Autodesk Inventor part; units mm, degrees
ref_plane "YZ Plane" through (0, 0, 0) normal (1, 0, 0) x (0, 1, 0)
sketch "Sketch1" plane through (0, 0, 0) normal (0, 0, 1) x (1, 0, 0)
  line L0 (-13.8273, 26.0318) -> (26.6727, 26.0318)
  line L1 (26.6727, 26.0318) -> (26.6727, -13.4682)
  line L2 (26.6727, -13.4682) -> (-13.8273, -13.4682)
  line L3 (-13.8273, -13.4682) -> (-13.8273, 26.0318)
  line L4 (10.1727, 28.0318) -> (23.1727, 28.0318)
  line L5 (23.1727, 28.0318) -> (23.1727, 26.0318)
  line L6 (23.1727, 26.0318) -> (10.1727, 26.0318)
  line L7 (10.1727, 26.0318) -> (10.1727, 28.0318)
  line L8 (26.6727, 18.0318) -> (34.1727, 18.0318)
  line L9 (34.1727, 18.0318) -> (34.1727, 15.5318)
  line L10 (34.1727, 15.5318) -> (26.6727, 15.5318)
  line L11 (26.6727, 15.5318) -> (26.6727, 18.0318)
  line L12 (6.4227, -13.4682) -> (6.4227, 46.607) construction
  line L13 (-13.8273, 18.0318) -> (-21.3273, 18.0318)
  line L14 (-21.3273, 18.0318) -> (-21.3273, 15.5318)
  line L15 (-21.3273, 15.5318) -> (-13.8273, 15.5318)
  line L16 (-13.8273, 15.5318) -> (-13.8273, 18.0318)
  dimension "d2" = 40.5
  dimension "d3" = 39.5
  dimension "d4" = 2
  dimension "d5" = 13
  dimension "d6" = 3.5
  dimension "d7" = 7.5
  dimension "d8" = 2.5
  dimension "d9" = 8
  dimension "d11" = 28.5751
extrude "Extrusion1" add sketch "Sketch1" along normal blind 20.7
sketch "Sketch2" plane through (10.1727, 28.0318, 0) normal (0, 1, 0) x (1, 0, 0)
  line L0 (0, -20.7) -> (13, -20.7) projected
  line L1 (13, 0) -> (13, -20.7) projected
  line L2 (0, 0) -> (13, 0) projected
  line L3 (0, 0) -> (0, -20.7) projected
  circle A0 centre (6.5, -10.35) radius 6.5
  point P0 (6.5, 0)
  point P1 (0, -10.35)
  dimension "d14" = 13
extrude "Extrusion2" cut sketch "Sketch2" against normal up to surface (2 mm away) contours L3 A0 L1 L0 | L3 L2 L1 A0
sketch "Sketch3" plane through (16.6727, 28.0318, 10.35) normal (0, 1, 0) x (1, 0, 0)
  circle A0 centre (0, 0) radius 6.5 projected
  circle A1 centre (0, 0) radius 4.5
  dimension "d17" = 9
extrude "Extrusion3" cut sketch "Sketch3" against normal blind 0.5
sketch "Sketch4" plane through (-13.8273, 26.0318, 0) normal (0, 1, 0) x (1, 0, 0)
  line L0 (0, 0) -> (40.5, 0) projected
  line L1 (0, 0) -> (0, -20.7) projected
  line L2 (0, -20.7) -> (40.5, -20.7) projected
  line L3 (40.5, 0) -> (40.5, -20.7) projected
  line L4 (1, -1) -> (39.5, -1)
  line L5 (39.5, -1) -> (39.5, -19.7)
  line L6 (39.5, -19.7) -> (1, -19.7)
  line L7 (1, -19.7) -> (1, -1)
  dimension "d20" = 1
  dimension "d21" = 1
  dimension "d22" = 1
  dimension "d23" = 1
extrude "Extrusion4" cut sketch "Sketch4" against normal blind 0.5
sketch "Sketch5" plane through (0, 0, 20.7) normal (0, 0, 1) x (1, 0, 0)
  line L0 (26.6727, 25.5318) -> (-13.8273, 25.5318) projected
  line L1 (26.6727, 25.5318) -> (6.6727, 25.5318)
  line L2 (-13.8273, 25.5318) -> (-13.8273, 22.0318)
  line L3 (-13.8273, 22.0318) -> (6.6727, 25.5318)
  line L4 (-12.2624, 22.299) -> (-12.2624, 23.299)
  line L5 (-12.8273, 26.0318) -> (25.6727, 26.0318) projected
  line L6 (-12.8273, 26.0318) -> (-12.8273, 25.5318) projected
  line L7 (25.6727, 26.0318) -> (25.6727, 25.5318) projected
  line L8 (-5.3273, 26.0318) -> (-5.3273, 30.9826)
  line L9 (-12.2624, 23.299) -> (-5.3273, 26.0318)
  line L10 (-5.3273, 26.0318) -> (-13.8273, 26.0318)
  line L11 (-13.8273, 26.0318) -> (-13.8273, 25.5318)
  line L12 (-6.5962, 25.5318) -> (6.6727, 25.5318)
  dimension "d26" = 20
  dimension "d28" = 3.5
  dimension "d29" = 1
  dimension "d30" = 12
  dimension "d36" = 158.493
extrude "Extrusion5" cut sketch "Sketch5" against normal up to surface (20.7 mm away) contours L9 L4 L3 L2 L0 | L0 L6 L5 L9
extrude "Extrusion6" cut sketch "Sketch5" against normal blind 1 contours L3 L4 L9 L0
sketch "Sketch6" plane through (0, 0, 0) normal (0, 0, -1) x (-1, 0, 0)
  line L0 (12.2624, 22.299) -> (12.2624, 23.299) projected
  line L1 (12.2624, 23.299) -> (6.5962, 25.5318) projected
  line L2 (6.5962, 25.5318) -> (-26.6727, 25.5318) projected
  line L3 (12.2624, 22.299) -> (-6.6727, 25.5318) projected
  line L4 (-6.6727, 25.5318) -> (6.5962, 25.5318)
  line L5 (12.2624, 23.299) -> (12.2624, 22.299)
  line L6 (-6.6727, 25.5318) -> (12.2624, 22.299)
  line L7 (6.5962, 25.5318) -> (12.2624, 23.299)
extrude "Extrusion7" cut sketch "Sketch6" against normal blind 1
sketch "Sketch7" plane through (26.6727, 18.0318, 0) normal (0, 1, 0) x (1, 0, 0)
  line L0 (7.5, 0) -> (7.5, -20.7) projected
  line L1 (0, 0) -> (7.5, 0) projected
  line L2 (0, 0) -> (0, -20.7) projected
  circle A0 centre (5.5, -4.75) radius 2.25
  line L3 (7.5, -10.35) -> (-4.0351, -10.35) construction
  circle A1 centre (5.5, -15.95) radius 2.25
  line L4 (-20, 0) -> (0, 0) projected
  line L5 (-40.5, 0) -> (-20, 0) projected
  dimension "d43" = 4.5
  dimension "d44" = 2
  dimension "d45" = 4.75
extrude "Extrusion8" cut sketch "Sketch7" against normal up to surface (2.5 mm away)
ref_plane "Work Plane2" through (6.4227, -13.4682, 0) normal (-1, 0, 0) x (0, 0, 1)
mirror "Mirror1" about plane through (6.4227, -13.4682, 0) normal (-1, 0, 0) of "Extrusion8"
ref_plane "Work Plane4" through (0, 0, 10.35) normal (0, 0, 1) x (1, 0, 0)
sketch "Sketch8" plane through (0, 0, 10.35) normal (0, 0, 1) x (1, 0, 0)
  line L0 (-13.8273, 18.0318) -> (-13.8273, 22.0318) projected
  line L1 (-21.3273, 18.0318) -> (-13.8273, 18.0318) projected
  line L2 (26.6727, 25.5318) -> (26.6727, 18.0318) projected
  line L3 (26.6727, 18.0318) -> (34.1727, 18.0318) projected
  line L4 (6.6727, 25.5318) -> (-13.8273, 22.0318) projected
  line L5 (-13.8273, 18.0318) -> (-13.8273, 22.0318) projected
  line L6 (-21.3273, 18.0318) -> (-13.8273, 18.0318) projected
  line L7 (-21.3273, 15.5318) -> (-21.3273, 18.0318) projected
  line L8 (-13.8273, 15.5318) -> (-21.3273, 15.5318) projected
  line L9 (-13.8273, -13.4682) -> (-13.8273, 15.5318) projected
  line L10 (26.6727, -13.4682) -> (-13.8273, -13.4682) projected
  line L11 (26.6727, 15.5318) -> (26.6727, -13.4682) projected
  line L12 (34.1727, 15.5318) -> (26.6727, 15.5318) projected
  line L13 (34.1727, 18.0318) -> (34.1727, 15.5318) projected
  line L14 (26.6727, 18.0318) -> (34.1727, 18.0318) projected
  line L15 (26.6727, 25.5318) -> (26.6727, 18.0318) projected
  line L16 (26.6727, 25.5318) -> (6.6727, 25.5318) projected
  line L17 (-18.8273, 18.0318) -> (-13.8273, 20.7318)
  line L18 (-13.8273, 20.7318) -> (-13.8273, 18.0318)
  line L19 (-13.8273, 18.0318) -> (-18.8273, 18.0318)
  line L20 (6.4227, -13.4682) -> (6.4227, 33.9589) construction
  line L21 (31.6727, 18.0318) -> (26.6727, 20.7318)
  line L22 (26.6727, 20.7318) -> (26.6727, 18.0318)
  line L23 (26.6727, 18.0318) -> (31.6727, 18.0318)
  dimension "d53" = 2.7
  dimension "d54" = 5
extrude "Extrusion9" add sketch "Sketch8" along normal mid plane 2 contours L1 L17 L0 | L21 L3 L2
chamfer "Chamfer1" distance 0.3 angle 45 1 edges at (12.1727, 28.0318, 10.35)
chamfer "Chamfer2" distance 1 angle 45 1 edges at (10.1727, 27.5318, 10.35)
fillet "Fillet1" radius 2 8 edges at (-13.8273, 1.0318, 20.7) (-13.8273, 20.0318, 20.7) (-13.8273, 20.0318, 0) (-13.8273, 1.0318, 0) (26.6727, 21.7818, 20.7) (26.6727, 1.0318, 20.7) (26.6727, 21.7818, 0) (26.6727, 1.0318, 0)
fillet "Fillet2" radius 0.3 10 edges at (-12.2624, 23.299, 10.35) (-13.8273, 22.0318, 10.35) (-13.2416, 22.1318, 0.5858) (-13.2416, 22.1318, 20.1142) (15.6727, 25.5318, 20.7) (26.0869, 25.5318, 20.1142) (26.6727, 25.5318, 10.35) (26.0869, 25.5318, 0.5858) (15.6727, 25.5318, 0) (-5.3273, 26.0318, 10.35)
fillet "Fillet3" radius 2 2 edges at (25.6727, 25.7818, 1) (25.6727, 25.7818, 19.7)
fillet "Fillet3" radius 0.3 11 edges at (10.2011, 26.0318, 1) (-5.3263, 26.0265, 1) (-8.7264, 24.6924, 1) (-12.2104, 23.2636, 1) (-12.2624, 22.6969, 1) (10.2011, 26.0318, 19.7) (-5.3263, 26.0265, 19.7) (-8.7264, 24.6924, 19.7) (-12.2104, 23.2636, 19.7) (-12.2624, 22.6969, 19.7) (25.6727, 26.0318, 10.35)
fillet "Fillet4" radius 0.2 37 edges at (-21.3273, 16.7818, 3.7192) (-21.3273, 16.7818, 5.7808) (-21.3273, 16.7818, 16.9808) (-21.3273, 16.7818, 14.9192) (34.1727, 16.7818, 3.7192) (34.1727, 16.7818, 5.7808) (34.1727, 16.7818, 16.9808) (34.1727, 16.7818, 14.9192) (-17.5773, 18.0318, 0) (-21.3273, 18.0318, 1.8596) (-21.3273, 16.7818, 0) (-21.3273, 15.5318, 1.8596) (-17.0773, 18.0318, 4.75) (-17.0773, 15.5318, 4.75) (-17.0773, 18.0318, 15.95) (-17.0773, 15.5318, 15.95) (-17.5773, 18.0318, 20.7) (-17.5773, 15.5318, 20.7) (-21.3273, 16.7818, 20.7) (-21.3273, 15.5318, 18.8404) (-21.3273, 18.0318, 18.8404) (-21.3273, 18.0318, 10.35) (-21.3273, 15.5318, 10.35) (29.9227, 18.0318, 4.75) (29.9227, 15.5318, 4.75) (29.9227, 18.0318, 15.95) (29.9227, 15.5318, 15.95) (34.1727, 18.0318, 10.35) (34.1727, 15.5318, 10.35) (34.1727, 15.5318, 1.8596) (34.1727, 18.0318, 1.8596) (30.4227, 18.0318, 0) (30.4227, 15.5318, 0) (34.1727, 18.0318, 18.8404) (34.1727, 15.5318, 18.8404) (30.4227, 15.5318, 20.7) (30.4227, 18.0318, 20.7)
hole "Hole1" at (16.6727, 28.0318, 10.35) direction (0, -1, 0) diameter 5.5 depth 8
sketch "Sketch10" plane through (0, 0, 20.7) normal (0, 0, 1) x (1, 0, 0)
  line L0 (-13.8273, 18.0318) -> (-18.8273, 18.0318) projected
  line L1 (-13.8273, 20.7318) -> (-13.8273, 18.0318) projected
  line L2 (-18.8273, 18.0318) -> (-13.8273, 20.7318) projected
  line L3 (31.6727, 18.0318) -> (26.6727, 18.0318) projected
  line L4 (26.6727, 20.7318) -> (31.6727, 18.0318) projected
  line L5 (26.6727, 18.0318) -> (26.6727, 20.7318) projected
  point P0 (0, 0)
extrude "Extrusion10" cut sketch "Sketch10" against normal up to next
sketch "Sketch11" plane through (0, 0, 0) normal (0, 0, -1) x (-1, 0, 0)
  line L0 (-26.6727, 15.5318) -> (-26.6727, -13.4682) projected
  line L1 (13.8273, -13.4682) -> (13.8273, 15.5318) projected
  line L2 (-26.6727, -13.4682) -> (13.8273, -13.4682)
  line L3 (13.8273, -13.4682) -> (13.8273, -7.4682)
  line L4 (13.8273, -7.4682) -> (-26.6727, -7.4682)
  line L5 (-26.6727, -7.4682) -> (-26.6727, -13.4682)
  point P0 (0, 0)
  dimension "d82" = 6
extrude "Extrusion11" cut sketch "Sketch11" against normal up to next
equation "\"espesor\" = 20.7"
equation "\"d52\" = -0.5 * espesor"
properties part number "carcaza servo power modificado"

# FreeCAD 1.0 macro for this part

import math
import FreeCAD as App
import Part
import Sketcher

V = App.Vector
Q = App.Units.Quantity


def edges_at(feature, points):
    """Names of the edges that pass closest to the given points."""
    edges = feature.Shape.Edges
    near = lambda p: min(range(len(edges)), key=lambda i: edges[i].distToShape(Part.Vertex(*p))[0])
    return sorted({f"Edge{near(p) + 1}" for p in points})


def add_polygon(sketch, points):
    """Adds a closed chain of lines whose ends are joined by coincident constraints."""
    first, n = sketch.GeometryCount, len(points)
    for a, b in zip(points, points[1:] + points[:1]):
        sketch.addGeometry(Part.LineSegment(App.Vector(*a, 0), App.Vector(*b, 0)), False)
    for i in range(n):
        sketch.addConstraint(Sketcher.Constraint("Coincident", first + i, 2, first + (i + 1) % n, 1))

doc = App.newDocument("Part")
body = doc.addObject("PartDesign::Body", "Body")

sketch1 = body.newObject("Sketcher::SketchObject", "Sketch")
sketch1.AttachmentSupport = (doc.getObject("XY_Plane"), [""])
sketch1.MapMode = "FlatFace"
add_polygon(sketch1, [(10.2, 26), (-13.8, 26), (-13.8, 18), (-21.3, 18), (-21.3, 15.5), (-13.8, 15.5), (-13.8, -13.5), (26.7, -13.5), (26.7, 15.5), (34.2, 15.5), (34.2, 18), (26.7, 18), (26.7, 26), (23.2, 26), (23.2, 28), (10.2, 28)])
sketch1.addConstraint(Sketcher.Constraint("Horizontal", 0))
sketch1.addConstraint(Sketcher.Constraint("Vertical", 1))
sketch1.addConstraint(Sketcher.Constraint("Horizontal", 2))
sketch1.addConstraint(Sketcher.Constraint("Vertical", 3))
sketch1.addConstraint(Sketcher.Constraint("Horizontal", 4))
sketch1.addConstraint(Sketcher.Constraint("Vertical", 5))
sketch1.addConstraint(Sketcher.Constraint("Horizontal", 6))
sketch1.addConstraint(Sketcher.Constraint("Vertical", 7))
sketch1.addConstraint(Sketcher.Constraint("Horizontal", 8))
sketch1.addConstraint(Sketcher.Constraint("Vertical", 9))
sketch1.addConstraint(Sketcher.Constraint("Horizontal", 10))
sketch1.addConstraint(Sketcher.Constraint("Vertical", 11))
sketch1.addConstraint(Sketcher.Constraint("Horizontal", 12))
sketch1.addConstraint(Sketcher.Constraint("Vertical", 13))
sketch1.addConstraint(Sketcher.Constraint("Horizontal", 14))
sketch1.addConstraint(Sketcher.Constraint("Vertical", 15))
sketch1.addConstraint(Sketcher.Constraint("Horizontal", 4, 2, 7, 2))
sketch1.addConstraint(Sketcher.Constraint("Horizontal", 2, 2, 9, 2))
sketch1.addConstraint(Sketcher.Constraint("Horizontal", 0, 2, 11, 2))
sketch1.addConstraint(Sketcher.Constraint("Vertical", 1, 2, 4, 2))
sketch1.addConstraint(Sketcher.Constraint("Vertical", 7, 2, 10, 2))
sketch1.addConstraint(Sketcher.Constraint("Equal", 4, 8))
sketch1.addConstraint(Sketcher.Constraint("DistanceX", 14, 2, 14, 1, Q("13 mm")))
sketch1.addConstraint(Sketcher.Constraint("DistanceY", 1, 2, 1, 1, Q("8 mm")))
sketch1.addConstraint(Sketcher.Constraint("DistanceY", 13, 1, 13, 2, Q("2 mm")))
sketch1.addConstraint(Sketcher.Constraint("DistanceX", 2, 2, 2, 1, Q("7.5 mm")))
sketch1.addConstraint(Sketcher.Constraint("DistanceX", 6, 1, 6, 2, Q("40.5 mm")))
sketch1.addConstraint(Sketcher.Constraint("DistanceX", 12, 2, 12, 1, Q("3.5 mm")))
sketch1.addConstraint(Sketcher.Constraint("DistanceY", 3, 2, 3, 1, Q("2.5 mm")))
sketch1.addConstraint(Sketcher.Constraint("DistanceY", 5, 2, 0, 2, Q("39.5 mm")))
sketch1.addConstraint(Sketcher.Constraint("DistanceX", 0, 2, -1, 1, Q("13.8273 mm")))
sketch1.addConstraint(Sketcher.Constraint("DistanceY", -1, 1, 0, 2, Q("26.0318 mm")))
pad1 = body.newObject("PartDesign::Pad", "Pad")
pad1.Profile = sketch1
pad1.Length = 20.7

sketch2 = body.newObject("Sketcher::SketchObject", "Sketch001")
sketch2.AttachmentSupport = (doc.getObject("XZ_Plane"), [""])
sketch2.MapMode = "FlatFace"
sketch2.AttachmentOffset = App.Placement(V(0, 0, -28.0318), App.Rotation())
sketch2.addGeometry(Part.LineSegment(V(10, 10, 0), V(10, 21, 0)), False)
sketch2.addGeometry(Part.LineSegment(V(10, 21, 0), V(23, 21, 0)), False)
sketch2.addGeometry(Part.LineSegment(V(23, 21, 0), V(23, 10, 0)), False)
sketch2.addGeometry(Part.ArcOfCircle(Part.Circle(V(17, 10, 0), V(0, 0, 1), 6), math.radians(0), math.radians(180)), False)
sketch2.addGeometry(Part.LineSegment(V(10, 0, 0), V(10, 10, 0)), False)
sketch2.addGeometry(Part.ArcOfCircle(Part.Circle(V(17, 10, 0), V(0, 0, 1), 6), math.radians(180), math.radians(360)), False)
sketch2.addGeometry(Part.LineSegment(V(23, 10, 0), V(23, 0, 0)), False)
sketch2.addGeometry(Part.LineSegment(V(23, 0, 0), V(10, 0, 0)), False)
sketch2.addConstraint(Sketcher.Constraint("Coincident", 0, 2, 1, 1))
sketch2.addConstraint(Sketcher.Constraint("Coincident", 1, 2, 2, 1))
sketch2.addConstraint(Sketcher.Constraint("Tangent", 2, 2, 3, 1))
sketch2.addConstraint(Sketcher.Constraint("Tangent", 3, 2, 0, 1))
sketch2.addConstraint(Sketcher.Constraint("Tangent", 4, 2, 5, 1))
sketch2.addConstraint(Sketcher.Constraint("Tangent", 5, 2, 6, 1))
sketch2.addConstraint(Sketcher.Constraint("Coincident", 6, 2, 7, 1))
sketch2.addConstraint(Sketcher.Constraint("Coincident", 7, 2, 4, 1))
sketch2.addConstraint(Sketcher.Constraint("Vertical", 0))
sketch2.addConstraint(Sketcher.Constraint("Horizontal", 1))
sketch2.addConstraint(Sketcher.Constraint("Vertical", 2))
sketch2.addConstraint(Sketcher.Constraint("Vertical", 4))
sketch2.addConstraint(Sketcher.Constraint("Vertical", 6))
sketch2.addConstraint(Sketcher.Constraint("Horizontal", 7))
sketch2.addConstraint(Sketcher.Constraint("Coincident", 5, 3, 3, 3))
sketch2.addConstraint(Sketcher.Constraint("Equal", 3, 5))
sketch2.addConstraint(Sketcher.Constraint("PointOnObject", 6, 2, -1))
sketch2.addConstraint(Sketcher.Constraint("Equal", 2, 4))
sketch2.addConstraint(Sketcher.Constraint("Radius", 3, Q("6.5 mm")))
sketch2.addConstraint(Sketcher.Constraint("DistanceY", 0, 1, 0, 2, Q("10.35 mm")))
sketch2.addConstraint(Sketcher.Constraint("DistanceX", -1, 1, 3, 3, Q("16.6727 mm")))
pocket1 = body.newObject("PartDesign::Pocket", "Pocket")
pocket1.Profile = sketch2
pocket1.Length = 2
pocket1.Reversed = True

sketch3 = body.newObject("Sketcher::SketchObject", "Sketch002")
sketch3.AttachmentSupport = (doc.getObject("XZ_Plane"), [""])
sketch3.MapMode = "FlatFace"
sketch3.AttachmentOffset = App.Placement(V(0, 0, -28.0318), App.Rotation())
sketch3.addGeometry(Part.Circle(V(16.7, 10.3, 0), V(0, 0, 1), 6.5), False)
sketch3.addGeometry(Part.Circle(V(16.7, 10.3, 0), V(0, 0, 1), 4.5), False)
sketch3.addConstraint(Sketcher.Constraint("Coincident", 1, 3, 0, 3))
sketch3.addConstraint(Sketcher.Constraint("Diameter", 1, Q("9 mm")))
sketch3.addConstraint(Sketcher.Constraint("Diameter", 0, Q("13 mm")))
sketch3.addConstraint(Sketcher.Constraint("DistanceY", -1, 1, 0, 3, Q("10.35 mm")))
sketch3.addConstraint(Sketcher.Constraint("DistanceX", -1, 1, 0, 3, Q("16.6727 mm")))
pocket2 = body.newObject("PartDesign::Pocket", "Pocket001")
pocket2.Profile = sketch3
pocket2.Length = 0.5
pocket2.Reversed = True

sketch4 = body.newObject("Sketcher::SketchObject", "Sketch003")
sketch4.AttachmentSupport = (doc.getObject("XZ_Plane"), [""])
sketch4.MapMode = "FlatFace"
sketch4.AttachmentOffset = App.Placement(V(0, 0, -26.0318), App.Rotation())
add_polygon(sketch4, [(27, 0), (-14, 0), (-14, 21), (27, 21)])
add_polygon(sketch4, [(-13, 20), (-13, 1), (26, 1), (26, 20)])
sketch4.addConstraint(Sketcher.Constraint("Horizontal", 0))
sketch4.addConstraint(Sketcher.Constraint("Vertical", 1))
sketch4.addConstraint(Sketcher.Constraint("Horizontal", 2))
sketch4.addConstraint(Sketcher.Constraint("Vertical", 3))
sketch4.addConstraint(Sketcher.Constraint("Vertical", 4))
sketch4.addConstraint(Sketcher.Constraint("Horizontal", 5))
sketch4.addConstraint(Sketcher.Constraint("Vertical", 6))
sketch4.addConstraint(Sketcher.Constraint("Horizontal", 7))
sketch4.addConstraint(Sketcher.Constraint("PointOnObject", 0, 2, -1))
sketch4.addConstraint(Sketcher.Constraint("DistanceY", -1, 1, 4, 2, Q("1 mm")))
sketch4.addConstraint(Sketcher.Constraint("DistanceX", 0, 2, 4, 2, Q("1 mm")))
sketch4.addConstraint(Sketcher.Constraint("DistanceX", 5, 2, 3, 2, Q("1 mm")))
sketch4.addConstraint(Sketcher.Constraint("DistanceY", 6, 2, 2, 2, Q("1 mm")))
sketch4.addConstraint(Sketcher.Constraint("DistanceX", 0, 2, 0, 1, Q("40.5 mm")))
sketch4.addConstraint(Sketcher.Constraint("DistanceY", 1, 1, 1, 2, Q("20.7 mm")))
sketch4.addConstraint(Sketcher.Constraint("DistanceX", 0, 2, -1, 1, Q("13.8273 mm")))
pocket3 = body.newObject("PartDesign::Pocket", "Pocket002")
pocket3.Profile = sketch4
pocket3.Length = 0.5
pocket3.Reversed = True

sketch5 = body.newObject("Sketcher::SketchObject", "Sketch004")
sketch5.AttachmentSupport = (doc.getObject("XY_Plane"), [""])
sketch5.MapMode = "FlatFace"
sketch5.AttachmentOffset = App.Placement(V(0, 0, 20.7), App.Rotation())
add_polygon(sketch5, [(-12.3, 23.3), (-5.3, 26), (-12.8, 26), (-12.8, 25.5), (-13.8, 25.5), (-13.8, 22), (-12.3, 22.3)])
sketch5.addConstraint(Sketcher.Constraint("Horizontal", 1))
sketch5.addConstraint(Sketcher.Constraint("Vertical", 2))
sketch5.addConstraint(Sketcher.Constraint("Horizontal", 3))
sketch5.addConstraint(Sketcher.Constraint("Vertical", 4))
sketch5.addConstraint(Sketcher.Constraint("Vertical", 6))
sketch5.addConstraint(Sketcher.Constraint("Equal", 3, 6))
sketch5.addConstraint(Sketcher.Constraint("DistanceX", 3, 2, 3, 1, Q("1 mm")))
sketch5.addConstraint(Sketcher.Constraint("DistanceY", 4, 2, 4, 1, Q("3.5 mm")))
sketch5.addConstraint(Sketcher.Constraint("DistanceX", 1, 2, 1, 1, Q("7.5 mm")))
sketch5.addConstraint(Sketcher.Constraint("DistanceY", 2, 2, 2, 1, Q("0.5 mm")))
sketch5.addConstraint(Sketcher.Constraint("Distance", 0, Q("7.454 mm")))
sketch5.addConstraint(Sketcher.Constraint("DistanceY", -1, 1, 5, 2, Q("22.299 mm")))
sketch5.addConstraint(Sketcher.Constraint("DistanceX", 4, 2, 5, 2, Q("1.565 mm")))
sketch5.addConstraint(Sketcher.Constraint("DistanceX", 0, 2, -1, 1, Q("5.3273 mm")))
pocket4 = body.newObject("PartDesign::Pocket", "Pocket003")
pocket4.Profile = sketch5
pocket4.Length = 20.7

sketch6 = body.newObject("Sketcher::SketchObject", "Sketch005")
sketch6.AttachmentSupport = (doc.getObject("XY_Plane"), [""])
sketch6.MapMode = "FlatFace"
sketch6.AttachmentOffset = App.Placement(V(0, 0, 20.7), App.Rotation())
add_polygon(sketch6, [(-12.3, 22.3), (6.7, 25.5), (-6.6, 25.5), (-12.3, 23.3)])
sketch6.addConstraint(Sketcher.Constraint("Horizontal", 1))
sketch6.addConstraint(Sketcher.Constraint("Vertical", 3))
sketch6.addConstraint(Sketcher.Constraint("DistanceY", 3, 2, 3, 1, Q("1 mm")))
sketch6.addConstraint(Sketcher.Constraint("DistanceX", 1, 2, 1, 1, Q("13.269 mm")))
sketch6.addConstraint(Sketcher.Constraint("Distance", 0, Q("19.209 mm")))
sketch6.addConstraint(Sketcher.Constraint("DistanceY", -1, 1, 2, 2, Q("23.299 mm")))
sketch6.addConstraint(Sketcher.Constraint("DistanceX", 2, 2, 0, 2, Q("18.935 mm")))
sketch6.addConstraint(Sketcher.Constraint("DistanceX", -1, 1, 0, 2, Q("6.6727 mm")))
pocket5 = body.newObject("PartDesign::Pocket", "Pocket004")
pocket5.Profile = sketch6
pocket5.Length = 1

sketch7 = body.newObject("Sketcher::SketchObject", "Sketch006")
sketch7.AttachmentSupport = (doc.getObject("XY_Plane"), [""])
sketch7.MapMode = "FlatFace"
add_polygon(sketch7, [(6.7, 25.5), (-12.3, 22.3), (-12.3, 23.3), (-6.6, 25.5)])
sketch7.addConstraint(Sketcher.Constraint("Vertical", 1))
sketch7.addConstraint(Sketcher.Constraint("Horizontal", 3))
sketch7.addConstraint(Sketcher.Constraint("DistanceY", 1, 1, 1, 2, Q("1 mm")))
sketch7.addConstraint(Sketcher.Constraint("DistanceX", 3, 1, 3, 2, Q("13.269 mm")))
sketch7.addConstraint(Sketcher.Constraint("Distance", 0, Q("19.209 mm")))
sketch7.addConstraint(Sketcher.Constraint("DistanceY", -1, 1, 0, 2, Q("22.299 mm")))
sketch7.addConstraint(Sketcher.Constraint("DistanceX", 1, 2, 3, 2, Q("18.935 mm")))
sketch7.addConstraint(Sketcher.Constraint("DistanceX", 0, 2, -1, 1, Q("12.2624 mm")))
pocket6 = body.newObject("PartDesign::Pocket", "Pocket005")
pocket6.Profile = sketch7
pocket6.Length = 1
pocket6.Reversed = True

sketch8 = body.newObject("Sketcher::SketchObject", "Sketch007")
sketch8.AttachmentSupport = (doc.getObject("XZ_Plane"), [""])
sketch8.MapMode = "FlatFace"
sketch8.AttachmentOffset = App.Placement(V(0, 0, -18.0318), App.Rotation())
sketch8.addGeometry(Part.Circle(V(32.2, 4.8, 0), V(0, 0, 1), 2.2), False)
sketch8.addGeometry(Part.Circle(V(32.2, 15.9, 0), V(0, 0, 1), 2.2), False)
sketch8.addConstraint(Sketcher.Constraint("Equal", 0, 1))
sketch8.addConstraint(Sketcher.Constraint("Vertical", 0, 3, 1, 3))
sketch8.addConstraint(Sketcher.Constraint("Diameter", 0, Q("4.5 mm")))
sketch8.addConstraint(Sketcher.Constraint("DistanceY", -1, 1, 0, 3, Q("4.75 mm")))
sketch8.addConstraint(Sketcher.Constraint("DistanceY", 0, 3, 1, 3, Q("11.2 mm")))
sketch8.addConstraint(Sketcher.Constraint("DistanceX", -1, 1, 0, 3, Q("32.1727 mm")))
pocket7 = body.newObject("PartDesign::Pocket", "Pocket006")
pocket7.Profile = sketch8
pocket7.Length = 2.5
pocket7.Reversed = True
doc.recompute()

datumplane = body.newObject("PartDesign::Plane", "DatumPlane")
datumplane.AttachmentSupport = (doc.getObject("YZ_Plane"), [""])
datumplane.MapMode = "FlatFace"
datumplane.AttachmentOffset = App.Placement(V(0, 0, 6.4227), App.Rotation())
mirrored = body.newObject("PartDesign::Mirrored", "Mirrored")
mirrored.Originals = [pocket7]
mirrored.MirrorPlane = (datumplane, [""])
body.Tip = mirrored

sketch9 = body.newObject("Sketcher::SketchObject", "Sketch008")
sketch9.AttachmentSupport = (doc.getObject("XY_Plane"), [""])
sketch9.MapMode = "FlatFace"
sketch9.AttachmentOffset = App.Placement(V(0, 0, 10.35), App.Rotation())
add_polygon(sketch9, [(-18.8, 18), (-13.8, 18), (-13.8, 20.7)])
add_polygon(sketch9, [(31.7, 18), (26.7, 20.7), (26.7, 18)])
sketch9.addConstraint(Sketcher.Constraint("Horizontal", 0))
sketch9.addConstraint(Sketcher.Constraint("Vertical", 1))
sketch9.addConstraint(Sketcher.Constraint("Vertical", 4))
sketch9.addConstraint(Sketcher.Constraint("Horizontal", 5))
sketch9.addConstraint(Sketcher.Constraint("Horizontal", 1, 2, 3, 2))
sketch9.addConstraint(Sketcher.Constraint("Horizontal", 2, 2, 4, 2))
sketch9.addConstraint(Sketcher.Constraint("Equal", 0, 5))
sketch9.addConstraint(Sketcher.Constraint("DistanceX", 0, 1, 0, 2, Q("5 mm")))
sketch9.addConstraint(Sketcher.Constraint("DistanceY", 1, 1, 1, 2, Q("2.7 mm")))
sketch9.addConstraint(Sketcher.Constraint("DistanceX", 1, 2, 3, 2, Q("40.5 mm")))
sketch9.addConstraint(Sketcher.Constraint("DistanceX", 0, 2, -1, 1, Q("13.8273 mm")))
sketch9.addConstraint(Sketcher.Constraint("DistanceY", -1, 1, 0, 2, Q("18.0318 mm")))
pad2 = body.newObject("PartDesign::Pad", "Pad001")
pad2.Profile = sketch9
pad2.Length = 2
pad2.Midplane = True
doc.recompute()

chamfer = body.newObject("PartDesign::Chamfer", "Chamfer")
chamfer.Base = (pad2, edges_at(pad2, [(12.173, 28.032, 10.35)]))
chamfer.Size = 0.3
doc.recompute()

chamfer2 = body.newObject("PartDesign::Chamfer", "Chamfer001")
chamfer2.Base = (chamfer, edges_at(chamfer, [(10.173, 27.532, 10.35)]))
chamfer2.Size = 1
doc.recompute()

fillet = body.newObject("PartDesign::Fillet", "Fillet")
fillet.Base = (chamfer2, edges_at(chamfer2, [
    (-13.827, 1.032, 20.7),
    (-13.827, 20.032, 20.7),
    (-13.827, 20.032, 0),
    (-13.827, 1.032, 0),
    (26.673, 21.782, 20.7),
    (26.673, 1.032, 20.7),
    (26.673, 21.782, 0),
    (26.673, 1.032, 0),
]))
fillet.Radius = 2
doc.recompute()

fillet2 = body.newObject("PartDesign::Fillet", "Fillet001")
fillet2.Base = (fillet, edges_at(fillet, [
    (-12.262, 23.299, 10.35),
    (-13.827, 22.032, 10.35),
    (-13.242, 22.132, 0.586),
    (-13.242, 22.132, 20.114),
    (15.673, 25.532, 20.7),
    (26.087, 25.532, 20.114),
    (26.673, 25.532, 10.35),
    (26.087, 25.532, 0.586),
    (15.673, 25.532, 0),
    (-5.327, 26.032, 10.35),
]))
fillet2.Radius = 0.3
doc.recompute()

fillet3 = body.newObject("PartDesign::Fillet", "Fillet002")
fillet3.Base = (fillet2, edges_at(fillet2, [(25.673, 25.782, 1), (25.673, 25.782, 19.7)]))
fillet3.Radius = 2
doc.recompute()

fillet4 = body.newObject("PartDesign::Fillet", "Fillet003")
fillet4.Base = (fillet3, edges_at(fillet3, [
    (10.201, 26.032, 1),
    (-5.326, 26.026, 1),
    (-8.726, 24.692, 1),
    (-12.21, 23.264, 1),
    (-12.262, 22.697, 1),
    (10.201, 26.032, 19.7),
    (-5.326, 26.026, 19.7),
    (-8.726, 24.692, 19.7),
    (-12.21, 23.264, 19.7),
    (-12.262, 22.697, 19.7),
    (25.673, 26.032, 10.35),
]))
fillet4.Radius = 0.3
doc.recompute()

fillet5 = body.newObject("PartDesign::Fillet", "Fillet004")
fillet5.Base = (fillet4, edges_at(fillet4, [
    (-21.327, 16.782, 3.719),
    (-21.327, 16.782, 5.781),
    (-21.327, 16.782, 16.981),
    (-21.327, 16.782, 14.919),
    (34.173, 16.782, 3.719),
    (34.173, 16.782, 5.781),
    (34.173, 16.782, 16.981),
    (34.173, 16.782, 14.919),
    (-17.577, 18.032, 0),
    (-21.327, 18.032, 1.86),
    (-21.327, 16.782, 0),
    (-21.327, 15.532, 1.86),
    (-17.077, 18.032, 4.75),
    (-17.077, 15.532, 4.75),
    (-17.077, 18.032, 15.95),
    (-17.077, 15.532, 15.95),
    (-17.577, 18.032, 20.7),
    (-17.577, 15.532, 20.7),
    (-21.327, 16.782, 20.7),
    (-21.327, 15.532, 18.84),
    (-21.327, 18.032, 18.84),
    (-21.327, 18.032, 10.35),
    (-21.327, 15.532, 10.35),
    (29.923, 18.032, 4.75),
    (29.923, 15.532, 4.75),
    (29.923, 18.032, 15.95),
    (29.923, 15.532, 15.95),
    (34.173, 18.032, 10.35),
    (34.173, 15.532, 10.35),
    (34.173, 15.532, 1.86),
    (34.173, 18.032, 1.86),
    (30.423, 18.032, 0),
    (30.423, 15.532, 0),
    (34.173, 18.032, 18.84),
    (34.173, 15.532, 18.84),
    (30.423, 15.532, 20.7),
    (30.423, 18.032, 20.7),
]))
fillet5.Radius = 0.2

sketch10 = body.newObject("Sketcher::SketchObject", "Sketch009")
sketch10.AttachmentSupport = (doc.getObject("XZ_Plane"), [""])
sketch10.MapMode = "FlatFace"
sketch10.AttachmentOffset = App.Placement(V(0, 0, -28.0318), App.Rotation())
sketch10.addGeometry(Part.Circle(V(16.7, 10.3, 0), V(0, 0, 1), 2.8), False)
sketch10.addConstraint(Sketcher.Constraint("Diameter", 0, Q("5.5 mm")))
sketch10.addConstraint(Sketcher.Constraint("DistanceY", -1, 1, 0, 3, Q("10.35 mm")))
sketch10.addConstraint(Sketcher.Constraint("DistanceX", -1, 1, 0, 3, Q("16.6727 mm")))
doc.recompute()
hole = body.newObject("PartDesign::Hole", "Hole")
hole.Profile = sketch10
hole.ThreadType = "None"
hole.Diameter = 5.5
hole.DepthType = "Dimension"
hole.Depth = 8
hole.DrillPoint = "Flat"
hole.Reversed = True

sketch11 = body.newObject("Sketcher::SketchObject", "Sketch010")
sketch11.AttachmentSupport = (doc.getObject("XY_Plane"), [""])
sketch11.MapMode = "FlatFace"
sketch11.AttachmentOffset = App.Placement(V(0, 0, 20.7), App.Rotation())
add_polygon(sketch11, [(-18.8, 18), (-13.8, 18), (-13.8, 20.7)])
add_polygon(sketch11, [(26.7, 18), (31.7, 18), (26.7, 20.7)])
sketch11.addConstraint(Sketcher.Constraint("Horizontal", 0))
sketch11.addConstraint(Sketcher.Constraint("Vertical", 1))
sketch11.addConstraint(Sketcher.Constraint("Horizontal", 3))
sketch11.addConstraint(Sketcher.Constraint("Vertical", 5))
sketch11.addConstraint(Sketcher.Constraint("Horizontal", 2, 2, 3, 2))
sketch11.addConstraint(Sketcher.Constraint("Horizontal", 1, 2, 4, 2))
sketch11.addConstraint(Sketcher.Constraint("Equal", 0, 3))
sketch11.addConstraint(Sketcher.Constraint("DistanceX", 0, 1, 0, 2, Q("5 mm")))
sketch11.addConstraint(Sketcher.Constraint("DistanceY", 1, 1, 1, 2, Q("2.7 mm")))
sketch11.addConstraint(Sketcher.Constraint("DistanceX", 0, 2, 3, 2, Q("45.5 mm")))
sketch11.addConstraint(Sketcher.Constraint("DistanceX", 0, 2, -1, 1, Q("13.8273 mm")))
sketch11.addConstraint(Sketcher.Constraint("DistanceY", -1, 1, 0, 2, Q("18.0318 mm")))
pocket8 = body.newObject("PartDesign::Pocket", "Pocket007")
pocket8.Profile = sketch11
pocket8.Type = "UpToFirst"

sketch12 = body.newObject("Sketcher::SketchObject", "Sketch011")
sketch12.AttachmentSupport = (doc.getObject("XY_Plane"), [""])
sketch12.MapMode = "FlatFace"
add_polygon(sketch12, [(-14, -7), (27, -7), (27, -13), (-14, -13)])
sketch12.addConstraint(Sketcher.Constraint("Horizontal", 0))
sketch12.addConstraint(Sketcher.Constraint("Vertical", 1))
sketch12.addConstraint(Sketcher.Constraint("Horizontal", 2))
sketch12.addConstraint(Sketcher.Constraint("Vertical", 3))
sketch12.addConstraint(Sketcher.Constraint("DistanceY", 1, 2, 1, 1, Q("6 mm")))
sketch12.addConstraint(Sketcher.Constraint("DistanceX", 0, 1, 0, 2, Q("40.5 mm")))
sketch12.addConstraint(Sketcher.Constraint("DistanceX", -1, 1, 0, 2, Q("26.6727 mm")))
sketch12.addConstraint(Sketcher.Constraint("DistanceY", 0, 2, -1, 1, Q("7.4682 mm")))
pocket9 = body.newObject("PartDesign::Pocket", "Pocket008")
pocket9.Profile = sketch12
pocket9.Type = "UpToFirst"
pocket9.Reversed = True

doc.recompute()
